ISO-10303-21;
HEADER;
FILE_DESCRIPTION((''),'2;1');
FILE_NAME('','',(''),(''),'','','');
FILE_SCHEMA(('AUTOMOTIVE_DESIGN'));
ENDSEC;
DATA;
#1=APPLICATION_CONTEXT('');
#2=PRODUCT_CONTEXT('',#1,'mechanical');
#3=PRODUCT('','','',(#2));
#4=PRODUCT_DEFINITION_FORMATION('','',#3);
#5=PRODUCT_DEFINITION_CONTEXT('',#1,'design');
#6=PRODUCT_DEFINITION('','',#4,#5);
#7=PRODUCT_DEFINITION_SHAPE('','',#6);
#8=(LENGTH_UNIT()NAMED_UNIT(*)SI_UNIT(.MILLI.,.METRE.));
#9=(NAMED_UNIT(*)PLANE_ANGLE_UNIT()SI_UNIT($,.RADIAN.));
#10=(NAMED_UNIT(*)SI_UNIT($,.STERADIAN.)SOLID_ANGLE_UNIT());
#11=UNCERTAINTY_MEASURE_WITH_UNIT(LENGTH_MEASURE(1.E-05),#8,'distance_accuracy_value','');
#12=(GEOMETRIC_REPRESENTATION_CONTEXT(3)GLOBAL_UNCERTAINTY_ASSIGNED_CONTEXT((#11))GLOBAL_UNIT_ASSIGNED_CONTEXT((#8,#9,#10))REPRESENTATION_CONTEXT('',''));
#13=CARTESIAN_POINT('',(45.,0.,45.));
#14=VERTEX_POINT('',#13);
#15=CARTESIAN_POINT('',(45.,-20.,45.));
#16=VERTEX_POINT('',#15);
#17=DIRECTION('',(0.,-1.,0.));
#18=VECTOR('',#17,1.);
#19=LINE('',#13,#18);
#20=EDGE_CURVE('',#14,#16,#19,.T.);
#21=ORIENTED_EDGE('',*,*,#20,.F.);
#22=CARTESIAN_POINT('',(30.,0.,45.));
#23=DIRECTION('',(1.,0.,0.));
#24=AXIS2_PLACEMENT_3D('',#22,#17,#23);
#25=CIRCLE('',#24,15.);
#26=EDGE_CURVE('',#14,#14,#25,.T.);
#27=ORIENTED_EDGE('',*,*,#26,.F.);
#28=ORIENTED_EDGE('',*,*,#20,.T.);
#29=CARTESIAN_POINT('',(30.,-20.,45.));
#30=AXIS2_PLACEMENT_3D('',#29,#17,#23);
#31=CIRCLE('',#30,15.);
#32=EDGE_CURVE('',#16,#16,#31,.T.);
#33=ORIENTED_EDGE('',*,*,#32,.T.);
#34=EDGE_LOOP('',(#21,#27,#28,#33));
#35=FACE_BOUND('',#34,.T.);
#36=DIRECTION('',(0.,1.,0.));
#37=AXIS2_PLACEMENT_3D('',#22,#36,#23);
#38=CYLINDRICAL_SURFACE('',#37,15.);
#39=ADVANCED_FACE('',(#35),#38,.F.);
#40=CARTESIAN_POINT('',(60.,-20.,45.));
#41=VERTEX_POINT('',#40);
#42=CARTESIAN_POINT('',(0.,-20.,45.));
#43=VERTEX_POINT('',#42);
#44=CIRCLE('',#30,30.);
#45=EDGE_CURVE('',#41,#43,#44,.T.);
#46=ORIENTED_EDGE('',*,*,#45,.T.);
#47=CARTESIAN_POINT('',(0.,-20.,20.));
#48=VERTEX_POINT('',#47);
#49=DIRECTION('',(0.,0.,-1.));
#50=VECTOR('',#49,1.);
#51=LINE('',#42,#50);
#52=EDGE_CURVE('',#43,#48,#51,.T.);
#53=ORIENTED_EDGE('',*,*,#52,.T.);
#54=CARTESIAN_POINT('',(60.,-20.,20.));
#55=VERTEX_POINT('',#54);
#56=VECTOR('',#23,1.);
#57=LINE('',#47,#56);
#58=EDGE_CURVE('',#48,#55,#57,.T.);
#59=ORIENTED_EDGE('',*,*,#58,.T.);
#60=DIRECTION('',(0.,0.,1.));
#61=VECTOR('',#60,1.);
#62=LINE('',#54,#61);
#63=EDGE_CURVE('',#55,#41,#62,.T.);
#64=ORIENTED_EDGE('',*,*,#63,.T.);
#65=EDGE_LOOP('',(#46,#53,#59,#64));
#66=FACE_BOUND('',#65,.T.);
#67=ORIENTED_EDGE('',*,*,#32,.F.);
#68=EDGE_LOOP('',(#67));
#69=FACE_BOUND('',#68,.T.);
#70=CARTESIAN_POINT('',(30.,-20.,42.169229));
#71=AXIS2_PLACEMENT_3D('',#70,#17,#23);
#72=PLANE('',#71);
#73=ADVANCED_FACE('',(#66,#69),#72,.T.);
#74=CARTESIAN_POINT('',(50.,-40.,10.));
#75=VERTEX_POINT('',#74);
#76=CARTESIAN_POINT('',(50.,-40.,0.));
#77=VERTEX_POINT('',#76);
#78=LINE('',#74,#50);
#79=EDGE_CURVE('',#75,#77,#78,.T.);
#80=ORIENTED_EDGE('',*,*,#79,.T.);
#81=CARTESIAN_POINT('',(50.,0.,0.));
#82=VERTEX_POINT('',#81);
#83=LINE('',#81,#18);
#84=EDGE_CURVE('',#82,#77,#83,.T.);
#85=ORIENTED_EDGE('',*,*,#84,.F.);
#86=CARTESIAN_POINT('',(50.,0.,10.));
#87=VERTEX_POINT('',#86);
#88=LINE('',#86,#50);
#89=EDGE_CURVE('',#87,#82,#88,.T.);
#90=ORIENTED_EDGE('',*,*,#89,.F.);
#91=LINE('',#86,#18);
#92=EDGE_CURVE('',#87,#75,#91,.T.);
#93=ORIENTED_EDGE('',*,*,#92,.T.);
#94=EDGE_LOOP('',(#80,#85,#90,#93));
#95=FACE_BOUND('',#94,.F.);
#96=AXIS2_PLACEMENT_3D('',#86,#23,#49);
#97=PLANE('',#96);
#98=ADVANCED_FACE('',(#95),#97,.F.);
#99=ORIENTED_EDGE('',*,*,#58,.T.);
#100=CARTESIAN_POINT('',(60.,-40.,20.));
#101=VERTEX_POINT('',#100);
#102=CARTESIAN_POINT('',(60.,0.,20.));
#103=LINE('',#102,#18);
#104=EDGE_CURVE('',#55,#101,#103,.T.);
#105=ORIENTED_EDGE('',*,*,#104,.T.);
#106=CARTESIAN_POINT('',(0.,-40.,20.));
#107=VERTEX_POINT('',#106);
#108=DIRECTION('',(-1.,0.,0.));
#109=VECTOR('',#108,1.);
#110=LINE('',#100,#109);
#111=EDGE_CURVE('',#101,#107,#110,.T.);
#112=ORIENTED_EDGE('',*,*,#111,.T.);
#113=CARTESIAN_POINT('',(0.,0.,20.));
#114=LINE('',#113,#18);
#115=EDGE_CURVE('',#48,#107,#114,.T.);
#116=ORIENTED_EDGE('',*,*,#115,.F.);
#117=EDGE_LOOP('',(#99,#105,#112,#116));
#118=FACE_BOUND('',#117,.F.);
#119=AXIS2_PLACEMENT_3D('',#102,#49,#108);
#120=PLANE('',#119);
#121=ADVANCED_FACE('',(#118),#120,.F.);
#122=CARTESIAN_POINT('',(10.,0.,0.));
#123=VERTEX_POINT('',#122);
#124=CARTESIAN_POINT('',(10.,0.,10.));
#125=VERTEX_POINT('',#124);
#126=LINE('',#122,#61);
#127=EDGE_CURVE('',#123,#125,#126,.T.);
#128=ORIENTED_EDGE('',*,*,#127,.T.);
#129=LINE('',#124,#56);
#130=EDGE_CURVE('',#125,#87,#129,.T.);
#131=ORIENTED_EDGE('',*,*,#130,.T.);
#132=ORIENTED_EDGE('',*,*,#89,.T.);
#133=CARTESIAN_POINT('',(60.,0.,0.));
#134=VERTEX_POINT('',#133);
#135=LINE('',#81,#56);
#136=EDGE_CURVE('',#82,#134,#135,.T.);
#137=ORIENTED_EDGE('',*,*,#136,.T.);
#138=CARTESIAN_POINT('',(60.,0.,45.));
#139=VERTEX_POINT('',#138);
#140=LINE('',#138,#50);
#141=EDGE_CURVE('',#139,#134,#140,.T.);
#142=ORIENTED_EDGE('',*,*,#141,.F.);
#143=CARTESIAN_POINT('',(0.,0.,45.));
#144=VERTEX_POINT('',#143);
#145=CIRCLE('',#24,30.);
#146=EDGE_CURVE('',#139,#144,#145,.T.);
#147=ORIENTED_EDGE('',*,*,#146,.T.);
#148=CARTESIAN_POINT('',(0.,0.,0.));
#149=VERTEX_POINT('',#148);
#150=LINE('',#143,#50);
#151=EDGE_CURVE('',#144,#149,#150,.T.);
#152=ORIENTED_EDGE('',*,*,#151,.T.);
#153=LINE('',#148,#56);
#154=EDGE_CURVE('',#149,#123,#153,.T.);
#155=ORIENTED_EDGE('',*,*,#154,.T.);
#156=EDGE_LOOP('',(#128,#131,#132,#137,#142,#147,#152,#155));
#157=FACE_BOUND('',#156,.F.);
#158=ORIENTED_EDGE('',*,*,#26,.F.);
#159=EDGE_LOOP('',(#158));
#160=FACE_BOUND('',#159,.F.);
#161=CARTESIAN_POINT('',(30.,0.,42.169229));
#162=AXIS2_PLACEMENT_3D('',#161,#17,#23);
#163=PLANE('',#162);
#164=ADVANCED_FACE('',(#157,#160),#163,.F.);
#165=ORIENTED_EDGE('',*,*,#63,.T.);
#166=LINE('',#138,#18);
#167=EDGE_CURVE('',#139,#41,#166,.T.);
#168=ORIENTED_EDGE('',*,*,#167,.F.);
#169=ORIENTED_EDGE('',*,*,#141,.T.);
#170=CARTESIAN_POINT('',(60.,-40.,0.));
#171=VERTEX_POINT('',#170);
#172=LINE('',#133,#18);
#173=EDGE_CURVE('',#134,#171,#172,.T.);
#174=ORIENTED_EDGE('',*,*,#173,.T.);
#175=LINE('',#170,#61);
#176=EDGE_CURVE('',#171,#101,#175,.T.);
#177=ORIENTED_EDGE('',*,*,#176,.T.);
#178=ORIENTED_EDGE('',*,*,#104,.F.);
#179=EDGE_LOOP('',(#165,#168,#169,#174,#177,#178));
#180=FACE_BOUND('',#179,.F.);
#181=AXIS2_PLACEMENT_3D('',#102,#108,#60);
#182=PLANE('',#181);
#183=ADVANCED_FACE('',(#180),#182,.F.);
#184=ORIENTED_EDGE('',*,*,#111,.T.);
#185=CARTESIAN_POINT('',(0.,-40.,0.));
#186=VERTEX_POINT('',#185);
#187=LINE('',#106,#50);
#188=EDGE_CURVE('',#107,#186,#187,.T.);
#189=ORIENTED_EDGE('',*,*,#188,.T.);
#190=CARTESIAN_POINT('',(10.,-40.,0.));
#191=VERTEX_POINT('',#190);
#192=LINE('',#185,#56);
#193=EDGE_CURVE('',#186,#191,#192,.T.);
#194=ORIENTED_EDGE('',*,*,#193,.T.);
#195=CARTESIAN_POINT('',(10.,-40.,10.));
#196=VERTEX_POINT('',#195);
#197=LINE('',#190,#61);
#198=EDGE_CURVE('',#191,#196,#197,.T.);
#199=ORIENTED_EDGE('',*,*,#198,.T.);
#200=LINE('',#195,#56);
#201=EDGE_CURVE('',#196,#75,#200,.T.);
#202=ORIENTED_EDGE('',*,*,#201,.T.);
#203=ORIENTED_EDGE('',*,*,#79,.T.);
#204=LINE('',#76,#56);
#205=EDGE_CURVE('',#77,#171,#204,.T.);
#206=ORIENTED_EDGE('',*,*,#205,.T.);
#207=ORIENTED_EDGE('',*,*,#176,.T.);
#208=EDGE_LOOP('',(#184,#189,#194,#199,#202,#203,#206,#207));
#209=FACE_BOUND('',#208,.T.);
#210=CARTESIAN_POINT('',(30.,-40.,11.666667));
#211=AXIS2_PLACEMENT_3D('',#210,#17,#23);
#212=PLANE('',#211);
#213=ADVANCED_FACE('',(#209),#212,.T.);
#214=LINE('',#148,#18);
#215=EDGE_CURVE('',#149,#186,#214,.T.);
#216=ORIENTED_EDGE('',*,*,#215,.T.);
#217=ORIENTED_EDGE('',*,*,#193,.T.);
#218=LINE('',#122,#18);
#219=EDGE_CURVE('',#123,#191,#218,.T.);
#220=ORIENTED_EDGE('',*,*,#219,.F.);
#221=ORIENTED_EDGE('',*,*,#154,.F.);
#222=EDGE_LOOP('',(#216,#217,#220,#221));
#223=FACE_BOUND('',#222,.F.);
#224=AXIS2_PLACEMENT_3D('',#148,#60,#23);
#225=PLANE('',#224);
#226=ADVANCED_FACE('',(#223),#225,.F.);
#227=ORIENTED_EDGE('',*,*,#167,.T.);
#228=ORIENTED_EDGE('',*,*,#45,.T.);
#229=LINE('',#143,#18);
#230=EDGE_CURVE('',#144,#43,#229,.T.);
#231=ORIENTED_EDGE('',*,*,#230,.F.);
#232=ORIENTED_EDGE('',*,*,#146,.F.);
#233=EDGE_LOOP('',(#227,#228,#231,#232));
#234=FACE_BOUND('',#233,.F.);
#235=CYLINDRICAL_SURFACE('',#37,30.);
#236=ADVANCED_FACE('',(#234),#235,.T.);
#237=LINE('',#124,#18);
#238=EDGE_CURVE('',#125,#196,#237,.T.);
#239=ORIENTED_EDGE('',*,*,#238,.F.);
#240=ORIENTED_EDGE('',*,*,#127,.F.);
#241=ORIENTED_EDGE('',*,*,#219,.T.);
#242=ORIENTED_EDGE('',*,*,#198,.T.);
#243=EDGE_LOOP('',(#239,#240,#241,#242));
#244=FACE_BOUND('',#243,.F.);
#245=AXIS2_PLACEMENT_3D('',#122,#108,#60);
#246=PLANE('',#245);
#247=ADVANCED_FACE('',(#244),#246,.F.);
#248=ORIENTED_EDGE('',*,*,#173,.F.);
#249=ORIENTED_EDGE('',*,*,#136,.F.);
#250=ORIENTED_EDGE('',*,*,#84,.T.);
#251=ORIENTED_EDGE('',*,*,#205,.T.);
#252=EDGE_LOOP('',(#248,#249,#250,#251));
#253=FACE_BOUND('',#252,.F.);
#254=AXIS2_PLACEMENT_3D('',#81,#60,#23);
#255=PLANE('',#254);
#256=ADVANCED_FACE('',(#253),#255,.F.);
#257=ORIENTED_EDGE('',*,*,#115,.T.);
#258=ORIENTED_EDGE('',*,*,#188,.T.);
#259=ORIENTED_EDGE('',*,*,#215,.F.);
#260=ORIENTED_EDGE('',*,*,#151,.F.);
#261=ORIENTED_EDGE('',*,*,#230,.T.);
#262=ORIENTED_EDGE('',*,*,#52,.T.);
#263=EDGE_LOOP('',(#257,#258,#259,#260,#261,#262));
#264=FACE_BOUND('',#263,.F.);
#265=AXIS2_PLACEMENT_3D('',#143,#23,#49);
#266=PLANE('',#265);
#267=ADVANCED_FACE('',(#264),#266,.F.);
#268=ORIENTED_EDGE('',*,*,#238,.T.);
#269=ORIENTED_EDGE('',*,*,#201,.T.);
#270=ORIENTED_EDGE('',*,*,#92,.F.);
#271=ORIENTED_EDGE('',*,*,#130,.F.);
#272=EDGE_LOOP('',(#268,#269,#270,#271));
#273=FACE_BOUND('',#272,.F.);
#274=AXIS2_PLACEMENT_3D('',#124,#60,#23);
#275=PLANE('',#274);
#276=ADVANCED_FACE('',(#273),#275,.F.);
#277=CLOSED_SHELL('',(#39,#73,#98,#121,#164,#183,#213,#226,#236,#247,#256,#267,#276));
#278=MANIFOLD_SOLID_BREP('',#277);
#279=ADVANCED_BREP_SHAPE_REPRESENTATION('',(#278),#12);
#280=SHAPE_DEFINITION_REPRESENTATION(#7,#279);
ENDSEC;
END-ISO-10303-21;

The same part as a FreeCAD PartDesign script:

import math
import FreeCAD as App
import Part
import Sketcher
Q = App.Units.Quantity


def add_polygon(sketch, points):
    """Adds a closed chain of lines whose ends are joined by coincident constraints."""
    first, n = sketch.GeometryCount, len(points)
    for a, b in zip(points, points[1:] + points[:1]):
        sketch.addGeometry(Part.LineSegment(App.Vector(*a, 0), App.Vector(*b, 0)), False)
    for i in range(n):
        sketch.addConstraint(Sketcher.Constraint("Coincident", first + i, 2, first + (i + 1) % n, 1))

doc = App.newDocument("Part")
body = doc.addObject("PartDesign::Body", "Body")

sketch1 = doc.addObject("Sketcher::SketchObject", "Sketch")
body.addObject(sketch1)
sketch1.AttachmentSupport = (doc.XZ_Plane, [""])
sketch1.MapMode = "FlatFace"
add_polygon(sketch1, [(0, 20), (0, 0), (10, 0), (10, 10), (50, 10), (50, 0), (60, 0), (60, 20)])
sketch1.addConstraint(Sketcher.Constraint("Vertical", 0))
sketch1.addConstraint(Sketcher.Constraint("Horizontal", 1))
sketch1.addConstraint(Sketcher.Constraint("Vertical", 2))
sketch1.addConstraint(Sketcher.Constraint("Horizontal", 3))
sketch1.addConstraint(Sketcher.Constraint("Vertical", 4))
sketch1.addConstraint(Sketcher.Constraint("Horizontal", 5))
sketch1.addConstraint(Sketcher.Constraint("Vertical", 6))
sketch1.addConstraint(Sketcher.Constraint("Horizontal", 7))
sketch1.addConstraint(Sketcher.Constraint("Coincident", 0, 2, -1, 1))
sketch1.addConstraint(Sketcher.Constraint("PointOnObject", 4, 2, -1))
sketch1.addConstraint(Sketcher.Constraint("Equal", 1, 5))
sketch1.addConstraint(Sketcher.Constraint("Equal", 5, 2))
sketch1.addConstraint(Sketcher.Constraint("DistanceX", 1, 1, 1, 2, Q("10 mm")))
sketch1.addConstraint(Sketcher.Constraint("DistanceX", 3, 1, 3, 2, Q("40 mm")))
sketch1.addConstraint(Sketcher.Constraint("DistanceY", 0, 2, 0, 1, Q("20 mm")))
pad1 = doc.addObject("PartDesign::Pad", "Pad")
body.addObject(pad1)
pad1.Profile = sketch1
pad1.Length = 40

sketch2 = doc.addObject("Sketcher::SketchObject", "Sketch001")
body.addObject(sketch2)
sketch2.AttachmentSupport = (doc.XZ_Plane, [""])
sketch2.MapMode = "FlatFace"
sketch2.addGeometry(Part.LineSegment(App.Vector(0, 45, 0), App.Vector(0, 20, 0)), False)
sketch2.addGeometry(Part.LineSegment(App.Vector(0, 20, 0), App.Vector(60, 20, 0)), False)
sketch2.addGeometry(Part.LineSegment(App.Vector(60, 20, 0), App.Vector(60, 45, 0)), False)
sketch2.addGeometry(Part.ArcOfCircle(Part.Circle(App.Vector(30, 45, 0), App.Vector(0, 0, 1), 30), math.radians(0), math.radians(180)), False)
sketch2.addGeometry(Part.Circle(App.Vector(30, 45, 0), App.Vector(0, 0, 1), 15), False)
sketch2.addConstraint(Sketcher.Constraint("Coincident", 0, 2, 1, 1))
sketch2.addConstraint(Sketcher.Constraint("Coincident", 1, 2, 2, 1))
sketch2.addConstraint(Sketcher.Constraint("Tangent", 2, 2, 3, 1))
sketch2.addConstraint(Sketcher.Constraint("Tangent", 3, 2, 0, 1))
sketch2.addConstraint(Sketcher.Constraint("Vertical", 0))
sketch2.addConstraint(Sketcher.Constraint("Horizontal", 1))
sketch2.addConstraint(Sketcher.Constraint("Vertical", 2))
sketch2.addConstraint(Sketcher.Constraint("Coincident", 4, 3, 3, 3))
sketch2.addConstraint(Sketcher.Constraint("PointOnObject", 0, 2, -2))
sketch2.addConstraint(Sketcher.Constraint("Diameter", 4, Q("30 mm")))
sketch2.addConstraint(Sketcher.Constraint("Radius", 3, Q("30 mm")))
sketch2.addConstraint(Sketcher.Constraint("DistanceY", 0, 2, 0, 1, Q("25 mm")))
sketch2.addConstraint(Sketcher.Constraint("DistanceY", -1, 1, 3, 3, Q("45 mm")))
pad2 = doc.addObject("PartDesign::Pad", "Pad001")
body.addObject(pad2)
pad2.Profile = sketch2
pad2.Length = 20

doc.recompute()
